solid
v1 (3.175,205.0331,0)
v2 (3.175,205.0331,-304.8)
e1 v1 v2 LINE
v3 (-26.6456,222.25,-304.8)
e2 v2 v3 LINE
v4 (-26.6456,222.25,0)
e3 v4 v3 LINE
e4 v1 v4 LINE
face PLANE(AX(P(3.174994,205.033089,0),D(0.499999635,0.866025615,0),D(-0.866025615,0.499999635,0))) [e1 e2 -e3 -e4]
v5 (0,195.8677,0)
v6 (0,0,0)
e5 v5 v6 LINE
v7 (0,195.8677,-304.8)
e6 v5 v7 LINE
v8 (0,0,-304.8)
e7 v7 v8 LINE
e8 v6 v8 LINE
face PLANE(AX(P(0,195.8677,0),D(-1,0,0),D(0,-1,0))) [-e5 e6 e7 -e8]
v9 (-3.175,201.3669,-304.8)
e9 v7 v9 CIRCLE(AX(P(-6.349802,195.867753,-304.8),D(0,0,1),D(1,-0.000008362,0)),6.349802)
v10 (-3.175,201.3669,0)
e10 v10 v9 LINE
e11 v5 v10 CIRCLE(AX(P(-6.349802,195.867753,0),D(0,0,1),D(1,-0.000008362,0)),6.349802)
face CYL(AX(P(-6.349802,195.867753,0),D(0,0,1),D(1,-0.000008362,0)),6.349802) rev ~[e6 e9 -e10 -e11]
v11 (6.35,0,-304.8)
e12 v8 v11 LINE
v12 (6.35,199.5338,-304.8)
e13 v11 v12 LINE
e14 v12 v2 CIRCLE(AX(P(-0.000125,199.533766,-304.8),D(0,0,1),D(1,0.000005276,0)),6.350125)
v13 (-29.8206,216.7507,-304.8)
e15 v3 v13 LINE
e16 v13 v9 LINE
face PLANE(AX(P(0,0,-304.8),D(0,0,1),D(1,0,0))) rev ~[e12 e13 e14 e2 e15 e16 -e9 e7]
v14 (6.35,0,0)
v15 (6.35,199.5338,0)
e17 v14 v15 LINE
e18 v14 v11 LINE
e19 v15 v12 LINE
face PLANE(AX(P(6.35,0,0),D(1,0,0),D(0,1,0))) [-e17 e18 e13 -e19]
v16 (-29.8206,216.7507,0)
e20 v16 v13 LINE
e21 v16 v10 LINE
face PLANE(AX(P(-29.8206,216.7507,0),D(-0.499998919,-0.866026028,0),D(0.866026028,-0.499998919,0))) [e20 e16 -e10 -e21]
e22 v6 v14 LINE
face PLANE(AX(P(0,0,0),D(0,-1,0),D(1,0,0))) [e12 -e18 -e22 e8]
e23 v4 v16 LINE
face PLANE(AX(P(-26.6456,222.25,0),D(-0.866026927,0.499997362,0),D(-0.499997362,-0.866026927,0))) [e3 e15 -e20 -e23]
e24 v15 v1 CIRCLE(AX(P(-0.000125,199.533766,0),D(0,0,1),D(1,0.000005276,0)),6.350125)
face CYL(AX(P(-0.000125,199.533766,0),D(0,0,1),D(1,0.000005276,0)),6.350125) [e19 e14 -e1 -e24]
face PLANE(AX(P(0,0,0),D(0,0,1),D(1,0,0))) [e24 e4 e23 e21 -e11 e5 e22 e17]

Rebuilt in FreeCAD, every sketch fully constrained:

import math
import FreeCAD as App
import Part
import Sketcher
Q = App.Units.Quantity

doc = App.newDocument("Part")
body = doc.addObject("PartDesign::Body", "Body")

# Sketch on XY plane
sketch1 = body.newObject("Sketcher::SketchObject", "Sketch")
sketch1.AttachmentSupport = (doc.getObject("XY_Plane"), [""])
sketch1.MapMode = "FlatFace"
sketch1.addGeometry(Part.LineSegment(App.Vector(0, 196, 0), App.Vector(0, 0, 0)), False)
sketch1.addGeometry(Part.LineSegment(App.Vector(0, 0, 0), App.Vector(6, 0, 0)), False)
sketch1.addGeometry(Part.LineSegment(App.Vector(6, 0, 0), App.Vector(6, 200, 0)), False)
sketch1.addGeometry(Part.ArcOfCircle(Part.Circle(App.Vector(0, 200, 0), App.Vector(0, 0, 1), 6), math.radians(0), math.radians(60)), False)
sketch1.addGeometry(Part.LineSegment(App.Vector(3, 205, 0), App.Vector(-27, 222, 0)), False)
sketch1.addGeometry(Part.LineSegment(App.Vector(-27, 222, 0), App.Vector(-30, 217, 0)), False)
sketch1.addGeometry(Part.LineSegment(App.Vector(-30, 217, 0), App.Vector(-3, 201, 0)), False)
sketch1.addGeometry(Part.ArcOfCircle(Part.Circle(App.Vector(-6, 196, 0), App.Vector(0, 0, 1), 6), math.radians(0), math.radians(60)), False)
sketch1.addConstraint(Sketcher.Constraint("Coincident", 0, 2, 1, 1))
sketch1.addConstraint(Sketcher.Constraint("Coincident", 1, 2, 2, 1))
sketch1.addConstraint(Sketcher.Constraint("Tangent", 2, 2, 3, 1))
sketch1.addConstraint(Sketcher.Constraint("Tangent", 3, 2, 4, 1))
sketch1.addConstraint(Sketcher.Constraint("Coincident", 4, 2, 5, 1))
sketch1.addConstraint(Sketcher.Constraint("Coincident", 5, 2, 6, 1))
sketch1.addConstraint(Sketcher.Constraint("Tangent", 6, 2, 7, 2))
sketch1.addConstraint(Sketcher.Constraint("Tangent", 7, 1, 0, 1))
sketch1.addConstraint(Sketcher.Constraint("Vertical", 0))
sketch1.addConstraint(Sketcher.Constraint("Horizontal", 1))
sketch1.addConstraint(Sketcher.Constraint("Vertical", 2))
sketch1.addConstraint(Sketcher.Constraint("Coincident", 0, 2, -1, 1))
sketch1.addConstraint(Sketcher.Constraint("Equal", 3, 7))
sketch1.addConstraint(Sketcher.Constraint("PointOnObject", 3, 3, -2))
sketch1.addConstraint(Sketcher.Constraint("Perpendicular", 4, 5))
sketch1.addConstraint(Sketcher.Constraint("Perpendicular", 5, 6))
sketch1.addConstraint(Sketcher.Constraint("Radius", 3, Q("0.25 in")))
sketch1.addConstraint(Sketcher.Constraint("Angle", 5, Q("-119.9998 deg")))
sketch1.addConstraint(Sketcher.Constraint("Distance", 5, Q("0.25 in")))
sketch1.addConstraint(Sketcher.Constraint("DistanceY", -1, 1, 4, 2, Q("8.75 in")))
sketch1.addConstraint(Sketcher.Constraint("DistanceY", 0, 2, 0, 1, 195.8677))
pad1 = body.newObject("PartDesign::Pad", "Pad")
pad1.Profile = sketch1
pad1.Length = Q("12 in")
pad1.Reversed = True

doc.recompute()
